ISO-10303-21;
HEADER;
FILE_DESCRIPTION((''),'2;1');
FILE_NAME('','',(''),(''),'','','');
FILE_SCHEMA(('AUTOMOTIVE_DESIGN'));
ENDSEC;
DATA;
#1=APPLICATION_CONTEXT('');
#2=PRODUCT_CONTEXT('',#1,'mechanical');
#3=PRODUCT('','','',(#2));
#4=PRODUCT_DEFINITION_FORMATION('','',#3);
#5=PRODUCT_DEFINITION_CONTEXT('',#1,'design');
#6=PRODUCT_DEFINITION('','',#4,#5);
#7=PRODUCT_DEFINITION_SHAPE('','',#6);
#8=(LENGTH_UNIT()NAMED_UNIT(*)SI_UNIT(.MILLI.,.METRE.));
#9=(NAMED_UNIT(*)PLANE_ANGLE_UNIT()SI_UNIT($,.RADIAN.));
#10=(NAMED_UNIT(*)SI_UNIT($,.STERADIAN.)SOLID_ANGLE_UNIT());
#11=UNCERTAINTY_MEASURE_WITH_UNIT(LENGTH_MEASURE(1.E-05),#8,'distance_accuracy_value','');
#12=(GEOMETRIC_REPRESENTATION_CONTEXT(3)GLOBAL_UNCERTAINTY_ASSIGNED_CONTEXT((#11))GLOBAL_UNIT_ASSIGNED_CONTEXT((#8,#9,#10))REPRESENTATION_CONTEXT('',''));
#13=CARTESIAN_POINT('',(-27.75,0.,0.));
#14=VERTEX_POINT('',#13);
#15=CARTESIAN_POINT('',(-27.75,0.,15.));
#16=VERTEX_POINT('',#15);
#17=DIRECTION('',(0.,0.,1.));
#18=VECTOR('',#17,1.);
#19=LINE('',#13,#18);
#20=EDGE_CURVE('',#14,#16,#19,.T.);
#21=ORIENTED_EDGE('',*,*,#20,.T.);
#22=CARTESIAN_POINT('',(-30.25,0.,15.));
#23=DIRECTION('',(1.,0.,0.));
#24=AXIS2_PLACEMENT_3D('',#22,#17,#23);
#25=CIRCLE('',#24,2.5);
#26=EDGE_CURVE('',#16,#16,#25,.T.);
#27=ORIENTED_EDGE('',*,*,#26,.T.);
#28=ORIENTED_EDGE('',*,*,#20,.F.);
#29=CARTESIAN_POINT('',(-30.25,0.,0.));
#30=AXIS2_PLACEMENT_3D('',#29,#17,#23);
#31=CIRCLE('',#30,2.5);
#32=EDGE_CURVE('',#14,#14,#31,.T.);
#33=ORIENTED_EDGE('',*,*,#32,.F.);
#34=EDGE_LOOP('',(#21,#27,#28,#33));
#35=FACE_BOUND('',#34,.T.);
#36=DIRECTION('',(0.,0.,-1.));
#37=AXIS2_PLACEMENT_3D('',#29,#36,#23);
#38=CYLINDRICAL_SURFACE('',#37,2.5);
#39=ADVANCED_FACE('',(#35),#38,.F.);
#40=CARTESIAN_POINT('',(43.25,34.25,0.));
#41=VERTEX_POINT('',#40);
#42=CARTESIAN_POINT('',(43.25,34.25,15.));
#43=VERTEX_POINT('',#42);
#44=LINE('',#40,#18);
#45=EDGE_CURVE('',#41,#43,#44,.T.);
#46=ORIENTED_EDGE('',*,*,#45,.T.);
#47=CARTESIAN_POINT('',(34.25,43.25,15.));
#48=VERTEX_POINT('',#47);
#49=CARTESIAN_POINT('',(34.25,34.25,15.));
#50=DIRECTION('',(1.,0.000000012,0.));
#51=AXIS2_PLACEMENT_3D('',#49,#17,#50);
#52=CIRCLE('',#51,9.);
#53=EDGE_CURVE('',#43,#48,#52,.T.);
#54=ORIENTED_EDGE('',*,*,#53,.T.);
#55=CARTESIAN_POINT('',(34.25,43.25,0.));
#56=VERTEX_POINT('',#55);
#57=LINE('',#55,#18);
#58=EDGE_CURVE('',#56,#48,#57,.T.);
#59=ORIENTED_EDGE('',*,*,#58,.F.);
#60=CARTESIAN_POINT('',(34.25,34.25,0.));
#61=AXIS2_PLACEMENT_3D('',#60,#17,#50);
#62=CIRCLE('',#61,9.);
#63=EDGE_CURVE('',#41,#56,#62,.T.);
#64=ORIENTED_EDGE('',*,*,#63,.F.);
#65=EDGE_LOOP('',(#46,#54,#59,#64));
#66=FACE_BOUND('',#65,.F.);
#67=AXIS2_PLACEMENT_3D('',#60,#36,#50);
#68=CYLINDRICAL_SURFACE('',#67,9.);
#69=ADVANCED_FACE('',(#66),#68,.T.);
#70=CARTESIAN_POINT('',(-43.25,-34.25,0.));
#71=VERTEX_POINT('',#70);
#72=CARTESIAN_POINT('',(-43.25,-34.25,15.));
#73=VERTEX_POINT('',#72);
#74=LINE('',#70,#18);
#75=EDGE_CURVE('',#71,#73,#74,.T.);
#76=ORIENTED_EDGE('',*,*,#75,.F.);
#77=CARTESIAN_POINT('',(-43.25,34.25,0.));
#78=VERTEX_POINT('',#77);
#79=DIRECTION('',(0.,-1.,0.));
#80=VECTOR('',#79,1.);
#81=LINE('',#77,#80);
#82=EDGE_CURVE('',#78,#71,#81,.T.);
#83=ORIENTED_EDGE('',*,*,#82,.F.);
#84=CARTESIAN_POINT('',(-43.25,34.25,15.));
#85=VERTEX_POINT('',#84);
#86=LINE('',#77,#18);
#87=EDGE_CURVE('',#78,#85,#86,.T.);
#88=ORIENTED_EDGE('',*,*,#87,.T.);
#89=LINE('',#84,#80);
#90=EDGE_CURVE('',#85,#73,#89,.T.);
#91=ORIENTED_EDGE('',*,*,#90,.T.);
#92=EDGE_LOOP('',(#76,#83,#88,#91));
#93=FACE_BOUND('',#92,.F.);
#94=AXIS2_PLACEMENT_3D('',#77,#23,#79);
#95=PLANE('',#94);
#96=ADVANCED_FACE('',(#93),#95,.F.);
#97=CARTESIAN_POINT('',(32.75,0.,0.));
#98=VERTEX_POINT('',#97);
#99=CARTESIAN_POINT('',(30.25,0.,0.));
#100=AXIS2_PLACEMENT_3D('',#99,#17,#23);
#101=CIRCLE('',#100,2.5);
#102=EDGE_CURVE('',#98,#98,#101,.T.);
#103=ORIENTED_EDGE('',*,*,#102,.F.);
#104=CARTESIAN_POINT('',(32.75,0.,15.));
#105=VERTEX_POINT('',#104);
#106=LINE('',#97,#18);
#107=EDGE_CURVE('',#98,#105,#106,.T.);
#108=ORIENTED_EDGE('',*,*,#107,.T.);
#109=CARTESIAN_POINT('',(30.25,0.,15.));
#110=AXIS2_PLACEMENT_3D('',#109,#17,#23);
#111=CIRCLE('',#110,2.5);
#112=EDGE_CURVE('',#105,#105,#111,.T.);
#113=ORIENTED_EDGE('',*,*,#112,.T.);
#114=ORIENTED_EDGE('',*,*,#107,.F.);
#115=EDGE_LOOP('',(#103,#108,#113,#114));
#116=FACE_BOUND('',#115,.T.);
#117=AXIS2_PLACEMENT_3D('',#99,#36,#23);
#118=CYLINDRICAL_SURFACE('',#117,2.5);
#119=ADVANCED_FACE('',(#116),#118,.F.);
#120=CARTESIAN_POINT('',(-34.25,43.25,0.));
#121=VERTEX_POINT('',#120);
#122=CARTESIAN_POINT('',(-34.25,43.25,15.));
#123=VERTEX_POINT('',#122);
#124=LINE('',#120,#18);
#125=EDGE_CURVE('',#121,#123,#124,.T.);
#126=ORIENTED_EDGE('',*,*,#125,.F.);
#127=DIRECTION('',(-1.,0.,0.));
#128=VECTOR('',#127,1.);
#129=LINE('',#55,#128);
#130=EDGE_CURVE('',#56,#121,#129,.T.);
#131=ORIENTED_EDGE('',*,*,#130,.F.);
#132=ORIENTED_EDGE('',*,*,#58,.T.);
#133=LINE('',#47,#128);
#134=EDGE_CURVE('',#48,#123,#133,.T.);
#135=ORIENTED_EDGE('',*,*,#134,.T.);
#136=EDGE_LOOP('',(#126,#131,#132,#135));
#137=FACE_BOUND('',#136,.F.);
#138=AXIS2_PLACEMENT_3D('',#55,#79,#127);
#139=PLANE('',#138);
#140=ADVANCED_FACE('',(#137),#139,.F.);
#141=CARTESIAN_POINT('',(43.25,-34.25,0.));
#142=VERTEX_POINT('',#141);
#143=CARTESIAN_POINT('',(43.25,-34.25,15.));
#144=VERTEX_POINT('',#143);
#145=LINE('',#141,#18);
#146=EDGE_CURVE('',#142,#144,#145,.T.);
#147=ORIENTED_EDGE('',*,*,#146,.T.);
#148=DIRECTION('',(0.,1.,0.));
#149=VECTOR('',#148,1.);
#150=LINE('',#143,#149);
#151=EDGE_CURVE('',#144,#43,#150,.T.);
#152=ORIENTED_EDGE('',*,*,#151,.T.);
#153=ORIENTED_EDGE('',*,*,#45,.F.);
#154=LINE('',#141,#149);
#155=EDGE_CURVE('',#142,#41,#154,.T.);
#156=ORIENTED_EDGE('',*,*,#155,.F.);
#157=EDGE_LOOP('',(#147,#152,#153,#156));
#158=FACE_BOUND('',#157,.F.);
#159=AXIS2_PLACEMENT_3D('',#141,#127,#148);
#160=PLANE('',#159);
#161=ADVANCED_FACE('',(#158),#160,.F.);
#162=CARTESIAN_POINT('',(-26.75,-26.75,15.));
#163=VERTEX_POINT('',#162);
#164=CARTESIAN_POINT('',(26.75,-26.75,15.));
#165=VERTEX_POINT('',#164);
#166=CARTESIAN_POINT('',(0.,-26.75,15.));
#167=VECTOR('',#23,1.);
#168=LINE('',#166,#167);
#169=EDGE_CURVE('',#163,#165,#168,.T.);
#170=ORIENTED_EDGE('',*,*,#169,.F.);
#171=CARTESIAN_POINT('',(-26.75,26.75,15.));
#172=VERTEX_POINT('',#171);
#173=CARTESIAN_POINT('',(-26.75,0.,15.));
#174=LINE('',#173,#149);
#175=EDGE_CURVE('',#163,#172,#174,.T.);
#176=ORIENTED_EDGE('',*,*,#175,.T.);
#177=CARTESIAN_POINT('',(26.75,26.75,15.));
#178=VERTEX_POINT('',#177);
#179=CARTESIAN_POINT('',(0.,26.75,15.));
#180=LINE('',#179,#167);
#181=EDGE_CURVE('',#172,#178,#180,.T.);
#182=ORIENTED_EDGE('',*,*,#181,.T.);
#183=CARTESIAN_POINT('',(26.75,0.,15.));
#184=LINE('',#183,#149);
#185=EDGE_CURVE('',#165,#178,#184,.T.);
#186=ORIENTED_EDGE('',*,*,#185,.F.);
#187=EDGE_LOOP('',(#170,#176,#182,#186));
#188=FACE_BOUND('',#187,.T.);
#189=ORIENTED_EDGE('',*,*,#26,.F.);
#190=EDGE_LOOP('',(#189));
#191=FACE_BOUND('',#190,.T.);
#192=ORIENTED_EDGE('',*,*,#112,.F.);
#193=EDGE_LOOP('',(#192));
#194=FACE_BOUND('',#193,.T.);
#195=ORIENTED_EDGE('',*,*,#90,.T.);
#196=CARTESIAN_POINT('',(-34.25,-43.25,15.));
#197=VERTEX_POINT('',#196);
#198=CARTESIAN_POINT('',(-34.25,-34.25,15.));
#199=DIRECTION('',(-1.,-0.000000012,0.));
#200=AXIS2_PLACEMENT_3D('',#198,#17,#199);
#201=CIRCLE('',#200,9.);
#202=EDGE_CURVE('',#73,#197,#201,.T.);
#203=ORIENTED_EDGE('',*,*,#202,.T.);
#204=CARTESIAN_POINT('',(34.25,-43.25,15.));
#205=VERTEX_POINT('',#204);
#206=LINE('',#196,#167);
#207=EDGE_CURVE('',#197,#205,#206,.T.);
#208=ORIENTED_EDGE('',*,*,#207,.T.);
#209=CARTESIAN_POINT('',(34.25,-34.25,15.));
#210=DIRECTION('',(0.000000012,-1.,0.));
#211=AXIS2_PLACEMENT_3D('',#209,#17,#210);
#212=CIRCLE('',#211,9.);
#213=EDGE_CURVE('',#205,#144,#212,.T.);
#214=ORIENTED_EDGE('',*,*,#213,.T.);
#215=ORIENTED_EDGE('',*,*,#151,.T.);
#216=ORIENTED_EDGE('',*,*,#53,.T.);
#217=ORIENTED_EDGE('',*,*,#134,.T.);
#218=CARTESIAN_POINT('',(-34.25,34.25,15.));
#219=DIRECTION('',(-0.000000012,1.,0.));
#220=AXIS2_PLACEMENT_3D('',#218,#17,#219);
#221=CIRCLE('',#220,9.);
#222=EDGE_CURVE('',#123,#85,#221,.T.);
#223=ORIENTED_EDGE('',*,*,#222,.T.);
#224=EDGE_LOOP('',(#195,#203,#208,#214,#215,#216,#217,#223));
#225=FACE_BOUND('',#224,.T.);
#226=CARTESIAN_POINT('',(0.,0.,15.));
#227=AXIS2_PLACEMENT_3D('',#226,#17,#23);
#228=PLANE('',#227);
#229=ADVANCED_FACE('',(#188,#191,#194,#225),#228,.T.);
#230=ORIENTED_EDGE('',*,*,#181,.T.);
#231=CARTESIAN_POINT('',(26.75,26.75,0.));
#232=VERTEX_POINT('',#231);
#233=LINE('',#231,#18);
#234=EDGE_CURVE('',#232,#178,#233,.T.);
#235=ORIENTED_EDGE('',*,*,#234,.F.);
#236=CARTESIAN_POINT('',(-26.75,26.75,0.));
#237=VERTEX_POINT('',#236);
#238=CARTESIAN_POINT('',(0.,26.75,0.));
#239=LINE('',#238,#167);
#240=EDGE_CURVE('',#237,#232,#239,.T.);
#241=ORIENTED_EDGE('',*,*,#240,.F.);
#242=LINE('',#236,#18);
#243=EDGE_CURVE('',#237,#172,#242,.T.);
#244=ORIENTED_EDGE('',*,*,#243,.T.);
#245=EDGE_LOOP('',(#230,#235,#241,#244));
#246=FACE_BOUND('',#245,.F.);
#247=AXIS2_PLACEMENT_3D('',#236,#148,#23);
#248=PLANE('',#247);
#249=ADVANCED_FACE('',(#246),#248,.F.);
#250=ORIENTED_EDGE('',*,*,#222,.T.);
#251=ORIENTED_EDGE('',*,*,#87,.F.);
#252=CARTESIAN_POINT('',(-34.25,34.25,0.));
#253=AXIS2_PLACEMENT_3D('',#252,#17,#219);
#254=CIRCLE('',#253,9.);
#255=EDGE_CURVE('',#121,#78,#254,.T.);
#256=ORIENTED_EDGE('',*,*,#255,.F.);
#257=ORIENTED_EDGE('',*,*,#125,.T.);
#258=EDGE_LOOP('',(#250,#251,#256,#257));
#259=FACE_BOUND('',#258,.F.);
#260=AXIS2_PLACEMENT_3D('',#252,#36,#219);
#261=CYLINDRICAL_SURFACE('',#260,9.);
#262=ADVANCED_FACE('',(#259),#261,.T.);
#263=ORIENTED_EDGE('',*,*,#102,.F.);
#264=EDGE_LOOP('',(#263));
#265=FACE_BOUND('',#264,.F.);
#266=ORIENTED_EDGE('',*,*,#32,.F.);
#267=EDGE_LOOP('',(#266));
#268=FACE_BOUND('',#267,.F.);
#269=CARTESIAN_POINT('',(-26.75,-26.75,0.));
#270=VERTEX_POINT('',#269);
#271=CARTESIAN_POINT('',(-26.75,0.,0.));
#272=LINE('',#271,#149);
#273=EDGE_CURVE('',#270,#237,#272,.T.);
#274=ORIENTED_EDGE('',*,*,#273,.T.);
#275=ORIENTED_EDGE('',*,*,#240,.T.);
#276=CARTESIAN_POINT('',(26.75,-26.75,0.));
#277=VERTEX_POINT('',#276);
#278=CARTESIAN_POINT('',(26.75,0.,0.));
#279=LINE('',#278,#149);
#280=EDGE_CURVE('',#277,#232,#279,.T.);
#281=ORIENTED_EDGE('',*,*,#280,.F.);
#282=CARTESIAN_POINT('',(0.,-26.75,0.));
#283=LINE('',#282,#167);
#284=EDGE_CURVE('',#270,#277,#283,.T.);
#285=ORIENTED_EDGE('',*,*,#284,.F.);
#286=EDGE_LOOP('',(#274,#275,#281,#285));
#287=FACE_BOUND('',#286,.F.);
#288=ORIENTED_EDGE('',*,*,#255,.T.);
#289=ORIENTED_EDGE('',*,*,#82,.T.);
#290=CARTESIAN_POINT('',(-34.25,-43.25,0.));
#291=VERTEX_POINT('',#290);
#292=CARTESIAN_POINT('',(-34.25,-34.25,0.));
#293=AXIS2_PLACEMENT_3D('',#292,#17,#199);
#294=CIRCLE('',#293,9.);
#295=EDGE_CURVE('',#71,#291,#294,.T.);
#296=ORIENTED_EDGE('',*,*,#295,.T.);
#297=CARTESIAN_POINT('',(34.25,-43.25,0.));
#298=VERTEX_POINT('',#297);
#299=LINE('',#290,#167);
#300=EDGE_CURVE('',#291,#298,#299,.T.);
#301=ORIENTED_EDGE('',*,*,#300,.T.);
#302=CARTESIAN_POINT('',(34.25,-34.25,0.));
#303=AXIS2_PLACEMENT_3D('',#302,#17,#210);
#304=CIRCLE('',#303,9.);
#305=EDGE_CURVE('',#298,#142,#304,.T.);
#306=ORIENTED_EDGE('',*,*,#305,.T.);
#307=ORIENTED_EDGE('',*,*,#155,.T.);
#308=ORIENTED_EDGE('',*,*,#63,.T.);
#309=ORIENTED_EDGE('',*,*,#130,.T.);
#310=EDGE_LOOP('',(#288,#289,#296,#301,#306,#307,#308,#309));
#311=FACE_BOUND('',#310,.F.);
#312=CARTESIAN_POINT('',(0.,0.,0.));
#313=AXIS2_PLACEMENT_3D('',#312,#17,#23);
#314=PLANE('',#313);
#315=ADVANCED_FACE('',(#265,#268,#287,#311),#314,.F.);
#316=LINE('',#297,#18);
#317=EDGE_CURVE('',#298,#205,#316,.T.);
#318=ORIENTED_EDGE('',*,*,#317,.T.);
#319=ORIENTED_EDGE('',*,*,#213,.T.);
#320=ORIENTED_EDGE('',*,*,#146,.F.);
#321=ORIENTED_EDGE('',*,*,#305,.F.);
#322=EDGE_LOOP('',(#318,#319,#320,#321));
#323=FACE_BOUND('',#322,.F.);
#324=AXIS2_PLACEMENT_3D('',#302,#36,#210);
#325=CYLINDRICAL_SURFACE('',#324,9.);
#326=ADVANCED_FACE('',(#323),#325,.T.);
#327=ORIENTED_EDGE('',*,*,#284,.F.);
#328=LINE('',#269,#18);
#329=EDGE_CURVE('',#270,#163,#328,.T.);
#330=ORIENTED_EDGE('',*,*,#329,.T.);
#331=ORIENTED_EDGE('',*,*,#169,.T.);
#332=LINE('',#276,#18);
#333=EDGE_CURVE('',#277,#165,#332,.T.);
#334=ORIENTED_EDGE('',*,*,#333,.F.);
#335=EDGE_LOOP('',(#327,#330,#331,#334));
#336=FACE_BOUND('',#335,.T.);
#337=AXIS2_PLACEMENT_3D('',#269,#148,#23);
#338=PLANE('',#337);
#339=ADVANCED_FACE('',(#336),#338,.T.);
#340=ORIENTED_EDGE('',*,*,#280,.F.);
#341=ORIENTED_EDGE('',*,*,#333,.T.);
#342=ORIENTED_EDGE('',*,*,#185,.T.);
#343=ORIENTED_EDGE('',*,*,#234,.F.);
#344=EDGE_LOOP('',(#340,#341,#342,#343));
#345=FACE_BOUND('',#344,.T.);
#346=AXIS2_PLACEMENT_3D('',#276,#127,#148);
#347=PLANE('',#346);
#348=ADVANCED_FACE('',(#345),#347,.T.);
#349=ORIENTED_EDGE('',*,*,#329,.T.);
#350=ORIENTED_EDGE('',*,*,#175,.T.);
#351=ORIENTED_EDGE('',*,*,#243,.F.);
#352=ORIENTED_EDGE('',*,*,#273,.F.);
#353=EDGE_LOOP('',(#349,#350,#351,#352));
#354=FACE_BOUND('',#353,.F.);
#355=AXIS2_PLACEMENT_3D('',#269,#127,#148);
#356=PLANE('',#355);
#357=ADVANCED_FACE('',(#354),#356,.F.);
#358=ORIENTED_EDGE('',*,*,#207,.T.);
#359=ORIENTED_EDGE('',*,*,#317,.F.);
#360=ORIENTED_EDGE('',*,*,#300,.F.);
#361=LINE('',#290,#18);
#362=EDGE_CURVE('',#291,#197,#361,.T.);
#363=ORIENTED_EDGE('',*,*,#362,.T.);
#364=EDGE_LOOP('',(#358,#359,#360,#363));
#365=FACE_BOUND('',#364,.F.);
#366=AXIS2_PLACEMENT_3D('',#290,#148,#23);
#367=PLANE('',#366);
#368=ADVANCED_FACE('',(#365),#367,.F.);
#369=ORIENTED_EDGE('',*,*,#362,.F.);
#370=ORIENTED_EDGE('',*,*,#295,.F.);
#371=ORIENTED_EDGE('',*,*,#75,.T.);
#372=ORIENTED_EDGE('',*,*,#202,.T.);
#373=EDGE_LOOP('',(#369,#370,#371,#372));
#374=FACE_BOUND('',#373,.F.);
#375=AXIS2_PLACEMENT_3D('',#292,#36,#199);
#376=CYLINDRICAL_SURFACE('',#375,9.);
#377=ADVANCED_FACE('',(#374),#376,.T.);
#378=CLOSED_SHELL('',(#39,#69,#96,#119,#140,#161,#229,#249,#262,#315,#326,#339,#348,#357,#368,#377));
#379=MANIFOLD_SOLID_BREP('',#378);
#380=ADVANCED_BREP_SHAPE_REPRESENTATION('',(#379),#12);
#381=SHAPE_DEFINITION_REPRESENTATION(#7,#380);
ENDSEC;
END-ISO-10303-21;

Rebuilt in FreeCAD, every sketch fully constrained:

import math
import FreeCAD as App
import Part
import Sketcher
from FreeCAD import Vector


def add_polygon(sketch, points):
    """Adds a closed chain of lines whose ends are joined by coincident constraints."""
    first, n = sketch.GeometryCount, len(points)
    for a, b in zip(points, points[1:] + points[:1]):
        sketch.addGeometry(Part.LineSegment(App.Vector(*a, 0), App.Vector(*b, 0)), False)
    for i in range(n):
        sketch.addConstraint(Sketcher.Constraint("Coincident", first + i, 2, first + (i + 1) % n, 1))

doc = App.newDocument("Part")
body = doc.addObject("PartDesign::Body", "Body")

sketch1 = body.newObject("Sketcher::SketchObject", "Sketch")
sketch1.AttachmentSupport = (doc.getObject("XY_Plane"), [""])
sketch1.MapMode = "FlatFace"
sketch1.addGeometry(Part.LineSegment(Vector(-34.2, -43.2, 0), Vector(34.2, -43.2, 0)), False)
sketch1.addGeometry(Part.ArcOfCircle(Part.Circle(Vector(34.2, -34.2, 0), Vector(0, 0, 1), 9), math.radians(-90), math.radians(0)), False)
sketch1.addGeometry(Part.LineSegment(Vector(43.2, -34.2, 0), Vector(43.2, 34.2, 0)), False)
sketch1.addGeometry(Part.ArcOfCircle(Part.Circle(Vector(34.2, 34.2, 0), Vector(0, 0, 1), 9), math.radians(0), math.radians(90)), False)
sketch1.addGeometry(Part.LineSegment(Vector(34.2, 43.2, 0), Vector(-34.2, 43.2, 0)), False)
sketch1.addGeometry(Part.ArcOfCircle(Part.Circle(Vector(-34.2, 34.2, 0), Vector(0, 0, 1), 9), math.radians(90), math.radians(180)), False)
sketch1.addGeometry(Part.LineSegment(Vector(-43.2, 34.2, 0), Vector(-43.2, -34.2, 0)), False)
sketch1.addGeometry(Part.ArcOfCircle(Part.Circle(Vector(-34.2, -34.2, 0), Vector(0, 0, 1), 9), math.radians(-180), math.radians(-90)), False)
sketch1.addGeometry(Part.Circle(Vector(-30.2, 0, 0), Vector(0, 0, 1), 2.5), False)
add_polygon(sketch1, [(26.8, -26.8), (-26.8, -26.8), (-26.8, 26.8), (26.8, 26.8)])
sketch1.addGeometry(Part.Circle(Vector(30.2, 0, 0), Vector(0, 0, 1), 2.5), False)
sketch1.addConstraint(Sketcher.Constraint("Tangent", 0, 2, 1, 1))
sketch1.addConstraint(Sketcher.Constraint("Tangent", 1, 2, 2, 1))
sketch1.addConstraint(Sketcher.Constraint("Tangent", 2, 2, 3, 1))
sketch1.addConstraint(Sketcher.Constraint("Tangent", 3, 2, 4, 1))
sketch1.addConstraint(Sketcher.Constraint("Tangent", 4, 2, 5, 1))
sketch1.addConstraint(Sketcher.Constraint("Tangent", 5, 2, 6, 1))
sketch1.addConstraint(Sketcher.Constraint("Tangent", 6, 2, 7, 1))
sketch1.addConstraint(Sketcher.Constraint("Tangent", 7, 2, 0, 1))
sketch1.addConstraint(Sketcher.Constraint("Horizontal", 0))
sketch1.addConstraint(Sketcher.Constraint("Vertical", 2))
sketch1.addConstraint(Sketcher.Constraint("Horizontal", 4))
sketch1.addConstraint(Sketcher.Constraint("Vertical", 6))
sketch1.addConstraint(Sketcher.Constraint("Horizontal", 9))
sketch1.addConstraint(Sketcher.Constraint("Vertical", 10))
sketch1.addConstraint(Sketcher.Constraint("Horizontal", 11))
sketch1.addConstraint(Sketcher.Constraint("Vertical", 12))
sketch1.addConstraint(Sketcher.Constraint("Equal", 1, 3))
sketch1.addConstraint(Sketcher.Constraint("Equal", 3, 5))
sketch1.addConstraint(Sketcher.Constraint("Equal", 5, 7))
sketch1.addConstraint(Sketcher.Constraint("Equal", 8, 13))
sketch1.addConstraint(Sketcher.Constraint("Symmetric", 1, 3, 5, 3, -1, 1))
sketch1.addConstraint(Sketcher.Constraint("Symmetric", 8, 3, 13, 3, -1, 1))
sketch1.addConstraint(Sketcher.Constraint("Symmetric", 9, 2, 11, 2, -1, 1))
sketch1.addConstraint(Sketcher.Constraint("PointOnObject", 8, 3, -1))
sketch1.addConstraint(Sketcher.Constraint("Equal", 4, 2))
sketch1.addConstraint(Sketcher.Constraint("Equal", 11, 10))
sketch1.addConstraint(Sketcher.Constraint("Diameter", 8, 5.0))
sketch1.addConstraint(Sketcher.Constraint("Radius", 1, 9.0))
sketch1.addConstraint(Sketcher.Constraint("DistanceX", 0, 1, 0, 2, 68.5))
sketch1.addConstraint(Sketcher.Constraint("DistanceX", 9, 2, 9, 1, 53.5))
sketch1.addConstraint(Sketcher.Constraint("DistanceX", 5, 3, 8, 3, 4.0))
pad1 = body.newObject("PartDesign::Pad", "Pad")
pad1.Profile = sketch1
pad1.Length = 15

doc.recompute()
